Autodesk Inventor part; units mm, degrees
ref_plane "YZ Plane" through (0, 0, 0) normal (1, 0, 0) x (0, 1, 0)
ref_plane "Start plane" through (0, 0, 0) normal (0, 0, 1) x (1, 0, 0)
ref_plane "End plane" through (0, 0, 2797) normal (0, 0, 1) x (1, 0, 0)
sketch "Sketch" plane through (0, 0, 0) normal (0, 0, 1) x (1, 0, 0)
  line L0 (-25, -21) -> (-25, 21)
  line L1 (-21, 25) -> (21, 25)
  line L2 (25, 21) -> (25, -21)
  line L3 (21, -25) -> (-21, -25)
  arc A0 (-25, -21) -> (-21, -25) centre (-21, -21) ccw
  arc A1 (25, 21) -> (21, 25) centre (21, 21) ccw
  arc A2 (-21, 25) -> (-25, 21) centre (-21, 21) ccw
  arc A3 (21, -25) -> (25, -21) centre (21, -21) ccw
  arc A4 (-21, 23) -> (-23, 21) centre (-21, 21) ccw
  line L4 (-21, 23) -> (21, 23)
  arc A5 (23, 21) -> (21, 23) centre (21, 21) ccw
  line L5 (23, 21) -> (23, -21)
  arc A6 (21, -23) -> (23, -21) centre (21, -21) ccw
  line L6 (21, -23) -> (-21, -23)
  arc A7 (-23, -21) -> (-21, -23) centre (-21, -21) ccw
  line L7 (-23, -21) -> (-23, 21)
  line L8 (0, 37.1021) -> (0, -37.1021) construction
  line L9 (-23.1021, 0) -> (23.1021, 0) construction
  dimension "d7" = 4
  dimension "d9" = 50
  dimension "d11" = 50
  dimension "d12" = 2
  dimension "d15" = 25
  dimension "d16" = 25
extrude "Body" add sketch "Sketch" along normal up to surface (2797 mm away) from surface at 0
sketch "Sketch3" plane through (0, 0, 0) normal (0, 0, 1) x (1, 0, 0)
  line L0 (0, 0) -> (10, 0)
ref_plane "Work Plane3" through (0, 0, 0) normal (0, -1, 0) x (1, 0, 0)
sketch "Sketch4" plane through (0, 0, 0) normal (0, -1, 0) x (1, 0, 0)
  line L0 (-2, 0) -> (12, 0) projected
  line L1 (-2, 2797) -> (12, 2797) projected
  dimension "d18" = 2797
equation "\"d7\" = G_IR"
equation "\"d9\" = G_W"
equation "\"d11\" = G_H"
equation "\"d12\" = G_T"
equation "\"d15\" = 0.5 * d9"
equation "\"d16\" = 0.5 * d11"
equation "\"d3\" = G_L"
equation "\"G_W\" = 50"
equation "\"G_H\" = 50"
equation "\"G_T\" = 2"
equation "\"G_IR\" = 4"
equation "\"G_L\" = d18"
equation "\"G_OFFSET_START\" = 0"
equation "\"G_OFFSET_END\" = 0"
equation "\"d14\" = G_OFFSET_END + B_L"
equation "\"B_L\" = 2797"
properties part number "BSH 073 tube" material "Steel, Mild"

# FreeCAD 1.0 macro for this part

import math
import FreeCAD as App
import Part
import Sketcher
from FreeCAD import Vector
Q = App.Units.Quantity

doc = App.newDocument("Part")
body = doc.addObject("PartDesign::Body", "Body")

# Sketch on XY plane
sketch1 = body.newObject("Sketcher::SketchObject", "Sketch")
sketch1.AttachmentSupport = (doc.getObject("XY_Plane"), [""])
sketch1.MapMode = "FlatFace"
sketch1.addGeometry([
    Part.LineSegment(Vector(-25, 21, 0), Vector(-25, -21, 0)),  # 0
    Part.ArcOfCircle(Part.Circle(Vector(-21, -21, 0), Vector(0, 0, 1), 4), math.radians(180), math.radians(270)),  # 1
    Part.LineSegment(Vector(-21, -25, 0), Vector(21, -25, 0)),  # 2
    Part.ArcOfCircle(Part.Circle(Vector(21, -21, 0), Vector(0, 0, 1), 4), math.radians(-90), math.radians(0)),  # 3
    Part.LineSegment(Vector(25, -21, 0), Vector(25, 21, 0)),  # 4
    Part.ArcOfCircle(Part.Circle(Vector(21, 21, 0), Vector(0, 0, 1), 4), math.radians(0), math.radians(90)),  # 5
    Part.LineSegment(Vector(21, 25, 0), Vector(-21, 25, 0)),  # 6
    Part.ArcOfCircle(Part.Circle(Vector(-21, 21, 0), Vector(0, 0, 1), 4), math.radians(90), math.radians(180)),  # 7
    Part.ArcOfCircle(Part.Circle(Vector(-21, 21, 0), Vector(0, 0, 1), 2), math.radians(90), math.radians(180)),  # 8
    Part.LineSegment(Vector(-21, 23, 0), Vector(21, 23, 0)),  # 9
    Part.ArcOfCircle(Part.Circle(Vector(21, 21, 0), Vector(0, 0, 1), 2), math.radians(0), math.radians(90)),  # 10
    Part.LineSegment(Vector(23, 21, 0), Vector(23, -21, 0)),  # 11
    Part.ArcOfCircle(Part.Circle(Vector(21, -21, 0), Vector(0, 0, 1), 2), math.radians(-90), math.radians(0)),  # 12
    Part.LineSegment(Vector(21, -23, 0), Vector(-21, -23, 0)),  # 13
    Part.ArcOfCircle(Part.Circle(Vector(-21, -21, 0), Vector(0, 0, 1), 2), math.radians(180), math.radians(270)),  # 14
    Part.LineSegment(Vector(-23, -21, 0), Vector(-23, 21, 0)),  # 15
], False)
sketch1.addConstraint([
    Sketcher.Constraint("Tangent", 0, 2, 1, 1),
    Sketcher.Constraint("Tangent", 1, 2, 2, 1),
    Sketcher.Constraint("Tangent", 2, 2, 3, 1),
    Sketcher.Constraint("Tangent", 3, 2, 4, 1),
    Sketcher.Constraint("Tangent", 4, 2, 5, 1),
    Sketcher.Constraint("Tangent", 5, 2, 6, 1),
    Sketcher.Constraint("Tangent", 6, 2, 7, 1),
    Sketcher.Constraint("Tangent", 7, 2, 0, 1),
    Sketcher.Constraint("Tangent", 8, 1, 9, 1),
    Sketcher.Constraint("Tangent", 9, 2, 10, 2),
    Sketcher.Constraint("Tangent", 10, 1, 11, 1),
    Sketcher.Constraint("Tangent", 11, 2, 12, 2),
    Sketcher.Constraint("Tangent", 12, 1, 13, 1),
    Sketcher.Constraint("Tangent", 13, 2, 14, 2),
    Sketcher.Constraint("Tangent", 14, 1, 15, 1),
    Sketcher.Constraint("Tangent", 15, 2, 8, 2),
    Sketcher.Constraint("Vertical", 0),
    Sketcher.Constraint("Horizontal", 2),
    Sketcher.Constraint("Vertical", 4),
    Sketcher.Constraint("Horizontal", 6),
    Sketcher.Constraint("Horizontal", 9),
    Sketcher.Constraint("Vertical", 11),
    Sketcher.Constraint("Horizontal", 13),
    Sketcher.Constraint("Vertical", 15),
    Sketcher.Constraint("Coincident", 8, 3, 7, 3),
    Sketcher.Constraint("Coincident", 10, 3, 5, 3),
    Sketcher.Constraint("Coincident", 12, 3, 3, 3),
    Sketcher.Constraint("Equal", 1, 3),
    Sketcher.Constraint("Equal", 3, 5),
    Sketcher.Constraint("Equal", 5, 7),
    Sketcher.Constraint("Equal", 12, 14),
    Sketcher.Constraint("Symmetric", 1, 3, 5, 3, -1, 1),
    Sketcher.Constraint("Equal", 13, 0),
    Sketcher.Constraint("Radius", 1, Q("4 mm")),
    Sketcher.Constraint("Radius", 8, Q("2 mm")),
    Sketcher.Constraint("DistanceX", 0, 2, -1, 1, Q("25 mm")),
])
pad1 = body.newObject("PartDesign::Pad", "Pad")
pad1.Profile = sketch1
pad1.Length = 2797

doc.recompute()
